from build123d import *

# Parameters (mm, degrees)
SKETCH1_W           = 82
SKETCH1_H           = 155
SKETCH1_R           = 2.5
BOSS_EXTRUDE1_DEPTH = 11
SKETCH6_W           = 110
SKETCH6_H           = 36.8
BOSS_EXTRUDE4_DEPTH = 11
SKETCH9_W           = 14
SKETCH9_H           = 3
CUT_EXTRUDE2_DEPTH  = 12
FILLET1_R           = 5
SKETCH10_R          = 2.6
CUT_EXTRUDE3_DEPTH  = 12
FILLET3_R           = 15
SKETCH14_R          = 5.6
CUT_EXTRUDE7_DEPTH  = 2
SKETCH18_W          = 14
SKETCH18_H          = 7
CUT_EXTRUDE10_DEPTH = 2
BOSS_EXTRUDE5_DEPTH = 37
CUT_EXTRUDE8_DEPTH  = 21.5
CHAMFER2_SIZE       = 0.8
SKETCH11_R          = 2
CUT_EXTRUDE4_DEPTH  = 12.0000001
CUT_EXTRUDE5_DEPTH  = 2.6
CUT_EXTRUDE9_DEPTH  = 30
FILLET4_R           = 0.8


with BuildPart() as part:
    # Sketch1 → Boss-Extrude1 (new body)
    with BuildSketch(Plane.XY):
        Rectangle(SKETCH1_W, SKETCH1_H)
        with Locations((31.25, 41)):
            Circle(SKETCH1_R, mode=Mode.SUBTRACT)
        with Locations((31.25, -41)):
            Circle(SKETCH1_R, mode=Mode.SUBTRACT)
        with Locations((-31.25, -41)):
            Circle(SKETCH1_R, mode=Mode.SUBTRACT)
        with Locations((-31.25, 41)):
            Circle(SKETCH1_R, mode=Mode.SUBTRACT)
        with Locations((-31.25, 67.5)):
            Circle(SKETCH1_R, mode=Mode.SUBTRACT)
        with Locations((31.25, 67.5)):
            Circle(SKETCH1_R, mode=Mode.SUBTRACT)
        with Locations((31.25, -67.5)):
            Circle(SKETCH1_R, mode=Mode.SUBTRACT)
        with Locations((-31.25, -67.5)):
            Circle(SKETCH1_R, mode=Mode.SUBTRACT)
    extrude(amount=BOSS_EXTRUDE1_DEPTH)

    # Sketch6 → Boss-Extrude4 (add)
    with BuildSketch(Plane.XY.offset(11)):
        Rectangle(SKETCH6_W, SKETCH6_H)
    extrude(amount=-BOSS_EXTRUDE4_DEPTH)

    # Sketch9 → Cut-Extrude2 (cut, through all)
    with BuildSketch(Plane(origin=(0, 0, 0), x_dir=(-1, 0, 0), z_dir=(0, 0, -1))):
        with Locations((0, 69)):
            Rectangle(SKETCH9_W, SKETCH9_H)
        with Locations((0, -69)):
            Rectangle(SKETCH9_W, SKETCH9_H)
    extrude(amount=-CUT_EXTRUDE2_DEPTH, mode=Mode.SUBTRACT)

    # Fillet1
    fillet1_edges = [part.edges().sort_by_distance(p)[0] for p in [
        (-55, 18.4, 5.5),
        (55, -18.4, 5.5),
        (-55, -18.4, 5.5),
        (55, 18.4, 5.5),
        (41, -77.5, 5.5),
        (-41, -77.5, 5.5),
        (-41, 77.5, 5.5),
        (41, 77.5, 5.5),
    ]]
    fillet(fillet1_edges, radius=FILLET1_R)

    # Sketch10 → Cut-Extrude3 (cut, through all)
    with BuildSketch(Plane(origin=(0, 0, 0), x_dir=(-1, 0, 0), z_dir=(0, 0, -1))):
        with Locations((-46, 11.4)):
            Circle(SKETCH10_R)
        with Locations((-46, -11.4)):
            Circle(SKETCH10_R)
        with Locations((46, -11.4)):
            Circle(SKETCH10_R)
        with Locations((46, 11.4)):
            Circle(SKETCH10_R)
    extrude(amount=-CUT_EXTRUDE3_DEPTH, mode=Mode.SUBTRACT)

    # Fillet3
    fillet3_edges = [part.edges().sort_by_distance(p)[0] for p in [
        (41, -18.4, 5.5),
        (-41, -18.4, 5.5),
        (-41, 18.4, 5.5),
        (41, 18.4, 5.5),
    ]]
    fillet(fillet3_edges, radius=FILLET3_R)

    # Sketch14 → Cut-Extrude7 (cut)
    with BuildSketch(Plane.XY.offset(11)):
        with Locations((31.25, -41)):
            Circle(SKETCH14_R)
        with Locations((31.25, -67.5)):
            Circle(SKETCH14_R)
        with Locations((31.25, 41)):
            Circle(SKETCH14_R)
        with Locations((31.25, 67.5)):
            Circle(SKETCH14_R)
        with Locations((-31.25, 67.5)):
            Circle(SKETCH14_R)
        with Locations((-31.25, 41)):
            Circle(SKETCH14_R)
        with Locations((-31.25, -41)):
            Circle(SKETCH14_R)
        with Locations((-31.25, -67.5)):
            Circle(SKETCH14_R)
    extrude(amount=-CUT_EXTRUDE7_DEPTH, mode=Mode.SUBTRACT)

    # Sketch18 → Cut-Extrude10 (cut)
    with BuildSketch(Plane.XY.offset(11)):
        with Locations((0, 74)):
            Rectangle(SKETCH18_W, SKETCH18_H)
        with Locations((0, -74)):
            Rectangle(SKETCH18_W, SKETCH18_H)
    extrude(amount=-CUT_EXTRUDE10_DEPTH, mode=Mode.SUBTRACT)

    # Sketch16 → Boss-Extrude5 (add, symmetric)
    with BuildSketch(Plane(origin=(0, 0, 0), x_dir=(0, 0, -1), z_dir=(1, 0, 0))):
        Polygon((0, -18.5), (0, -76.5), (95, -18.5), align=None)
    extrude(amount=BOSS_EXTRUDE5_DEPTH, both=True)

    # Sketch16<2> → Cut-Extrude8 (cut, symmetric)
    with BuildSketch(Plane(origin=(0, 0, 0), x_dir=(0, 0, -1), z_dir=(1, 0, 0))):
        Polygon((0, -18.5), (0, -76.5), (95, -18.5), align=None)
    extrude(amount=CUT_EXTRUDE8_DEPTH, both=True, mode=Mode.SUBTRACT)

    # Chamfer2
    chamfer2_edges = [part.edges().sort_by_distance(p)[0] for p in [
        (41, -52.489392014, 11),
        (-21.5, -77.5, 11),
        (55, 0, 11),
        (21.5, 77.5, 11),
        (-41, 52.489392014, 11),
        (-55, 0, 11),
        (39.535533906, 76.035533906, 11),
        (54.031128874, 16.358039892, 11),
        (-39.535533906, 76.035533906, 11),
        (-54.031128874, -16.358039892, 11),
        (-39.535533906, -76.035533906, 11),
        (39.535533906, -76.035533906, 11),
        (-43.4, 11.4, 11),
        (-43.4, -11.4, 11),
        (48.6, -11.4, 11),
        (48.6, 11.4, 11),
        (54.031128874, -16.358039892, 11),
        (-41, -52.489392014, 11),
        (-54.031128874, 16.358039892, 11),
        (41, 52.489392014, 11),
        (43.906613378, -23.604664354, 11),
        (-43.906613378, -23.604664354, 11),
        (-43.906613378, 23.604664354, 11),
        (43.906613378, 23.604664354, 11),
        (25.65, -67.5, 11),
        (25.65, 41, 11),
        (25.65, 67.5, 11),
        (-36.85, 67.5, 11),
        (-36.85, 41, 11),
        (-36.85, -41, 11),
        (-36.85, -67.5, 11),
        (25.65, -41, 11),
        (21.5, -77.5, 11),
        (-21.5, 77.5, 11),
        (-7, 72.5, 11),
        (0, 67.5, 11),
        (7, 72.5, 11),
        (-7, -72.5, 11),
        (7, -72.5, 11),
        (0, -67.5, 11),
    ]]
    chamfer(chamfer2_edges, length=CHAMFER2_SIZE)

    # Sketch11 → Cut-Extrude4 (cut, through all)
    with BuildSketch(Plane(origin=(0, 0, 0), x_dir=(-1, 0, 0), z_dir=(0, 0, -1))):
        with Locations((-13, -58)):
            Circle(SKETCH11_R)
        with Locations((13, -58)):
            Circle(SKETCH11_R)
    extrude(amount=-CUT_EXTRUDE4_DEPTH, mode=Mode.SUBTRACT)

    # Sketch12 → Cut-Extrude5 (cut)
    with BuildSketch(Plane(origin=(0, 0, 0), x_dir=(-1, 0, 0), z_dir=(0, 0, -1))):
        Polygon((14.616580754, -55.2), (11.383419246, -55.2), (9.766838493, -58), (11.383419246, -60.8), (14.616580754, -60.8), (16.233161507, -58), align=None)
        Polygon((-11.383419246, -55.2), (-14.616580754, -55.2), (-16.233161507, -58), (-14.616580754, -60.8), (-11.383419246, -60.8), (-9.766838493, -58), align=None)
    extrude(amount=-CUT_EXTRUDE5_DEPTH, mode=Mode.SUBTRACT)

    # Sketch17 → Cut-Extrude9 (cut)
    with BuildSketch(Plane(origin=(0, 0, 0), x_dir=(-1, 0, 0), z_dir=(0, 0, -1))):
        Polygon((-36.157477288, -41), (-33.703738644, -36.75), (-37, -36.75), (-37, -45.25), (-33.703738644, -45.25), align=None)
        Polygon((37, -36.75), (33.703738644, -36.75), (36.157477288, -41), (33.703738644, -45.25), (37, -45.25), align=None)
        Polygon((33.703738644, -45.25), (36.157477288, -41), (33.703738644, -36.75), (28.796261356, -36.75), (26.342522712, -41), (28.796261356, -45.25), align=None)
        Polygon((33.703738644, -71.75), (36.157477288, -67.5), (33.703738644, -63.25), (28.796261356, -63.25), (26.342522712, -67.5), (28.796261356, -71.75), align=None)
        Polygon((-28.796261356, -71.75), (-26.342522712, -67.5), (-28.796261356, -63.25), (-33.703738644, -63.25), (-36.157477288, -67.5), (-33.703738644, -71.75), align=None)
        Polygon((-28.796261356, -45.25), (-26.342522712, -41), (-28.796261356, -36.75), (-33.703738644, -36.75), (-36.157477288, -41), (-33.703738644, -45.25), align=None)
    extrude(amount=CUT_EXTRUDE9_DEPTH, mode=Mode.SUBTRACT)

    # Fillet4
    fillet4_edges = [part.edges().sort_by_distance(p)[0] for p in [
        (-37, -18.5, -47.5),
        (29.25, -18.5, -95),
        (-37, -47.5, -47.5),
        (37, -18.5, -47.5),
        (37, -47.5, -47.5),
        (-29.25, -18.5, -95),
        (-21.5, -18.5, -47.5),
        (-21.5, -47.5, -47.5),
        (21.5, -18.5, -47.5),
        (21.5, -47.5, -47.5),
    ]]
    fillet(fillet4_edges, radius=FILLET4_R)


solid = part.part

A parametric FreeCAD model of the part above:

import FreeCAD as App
import Part
import Sketcher
from FreeCAD import Vector
Q = App.Units.Quantity


def edges_at(feature, points):
    """Names of the edges that pass closest to the given points."""
    edges = feature.Shape.Edges
    near = lambda p: min(range(len(edges)), key=lambda i: edges[i].distToShape(Part.Vertex(*p))[0])
    return sorted({f"Edge{near(p) + 1}" for p in points})

doc = App.newDocument("Part")
body = doc.addObject("PartDesign::Body", "Body")

# Sketch on XY plane
sketch1 = doc.addObject("Sketcher::SketchObject", "Sketch")
body.addObject(sketch1)
sketch1.AttachmentSupport = (doc.XY_Plane, [""])
sketch1.MapMode = "FlatFace"
sketch1.addGeometry([
    Part.LineSegment(Vector(-41, 77.5, 0), Vector(-41, -77.5, 0)),  # 0
    Part.LineSegment(Vector(-41, -77.5, 0), Vector(41, -77.5, 0)),  # 1
    Part.LineSegment(Vector(41, -77.5, 0), Vector(41, 77.5, 0)),  # 2
    Part.LineSegment(Vector(41, 77.5, 0), Vector(-41, 77.5, 0)),  # 3
    Part.Circle(Vector(-31.25, -67.5, 0), Vector(0, 0, 1), 2.5),  # 4
    Part.Circle(Vector(-31.25, -41, 0), Vector(0, 0, 1), 2.5),  # 5
    Part.Circle(Vector(31.25, -67.5, 0), Vector(0, 0, 1), 2.5),  # 6
    Part.Circle(Vector(31.25, -41, 0), Vector(0, 0, 1), 2.5),  # 7
    Part.Circle(Vector(-31.25, 41, 0), Vector(0, 0, 1), 2.5),  # 8
    Part.Circle(Vector(-31.25, 67.5, 0), Vector(0, 0, 1), 2.5),  # 9
    Part.Circle(Vector(31.25, 41, 0), Vector(0, 0, 1), 2.5),  # 10
    Part.Circle(Vector(31.25, 67.5, 0), Vector(0, 0, 1), 2.5),  # 11
], False)
sketch1.addConstraint([
    Sketcher.Constraint("Coincident", 0, 2, 1, 1),
    Sketcher.Constraint("Coincident", 1, 2, 2, 1),
    Sketcher.Constraint("Coincident", 2, 2, 3, 1),
    Sketcher.Constraint("Coincident", 3, 2, 0, 1),
    Sketcher.Constraint("Vertical", 0),
    Sketcher.Constraint("Horizontal", 1),
    Sketcher.Constraint("Vertical", 2),
    Sketcher.Constraint("Horizontal", 3),
    Sketcher.Constraint("Equal", 4, 5),
    Sketcher.Constraint("Equal", 5, 6),
    Sketcher.Constraint("Equal", 6, 7),
    Sketcher.Constraint("Equal", 7, 8),
    Sketcher.Constraint("Equal", 8, 9),
    Sketcher.Constraint("Equal", 9, 10),
    Sketcher.Constraint("Equal", 10, 11),
    Sketcher.Constraint("Symmetric", 7, 3, 8, 3, -1, 1),
    Sketcher.Constraint("Symmetric", 6, 3, 9, 3, -1, 1),
    Sketcher.Constraint("Symmetric", 5, 3, 10, 3, -1, 1),
    Sketcher.Constraint("Symmetric", 4, 3, 11, 3, -1, 1),
    Sketcher.Constraint("Symmetric", 0, 2, 2, 2, -1, 1),
    Sketcher.Constraint("Symmetric", 4, 3, 6, 3, -2),
    Sketcher.Constraint("Symmetric", 5, 3, 7, 3, -2),
    Sketcher.Constraint("Vertical", 4, 3, 5, 3),
    Sketcher.Constraint("Diameter", 4, 5.0),
    Sketcher.Constraint("DistanceX", 1, 1, 1, 2, 82.0),
    Sketcher.Constraint("DistanceY", 0, 2, 0, 1, 155.0),
    Sketcher.Constraint("DistanceY", 5, 3, -1, 1, 41.0),
    Sketcher.Constraint("DistanceY", 4, 3, 9, 3, 135.0),
    Sketcher.Constraint("DistanceX", 4, 3, 6, 3, 62.5),
])
pad1 = doc.addObject("PartDesign::Pad", "Pad")
body.addObject(pad1)
pad1.Profile = sketch1
pad1.Length = 11

# Sketch on XY plane
sketch2 = doc.addObject("Sketcher::SketchObject", "Sketch001")
body.addObject(sketch2)
sketch2.AttachmentSupport = (doc.XY_Plane, [""])
sketch2.MapMode = "FlatFace"
sketch2.AttachmentOffset = App.Placement(Vector(0, 0, 11), App.Rotation())
sketch2.addGeometry([
    Part.LineSegment(Vector(-55, 18.4, 0), Vector(-55, -18.4, 0)),
    Part.LineSegment(Vector(-55, -18.4, 0), Vector(55, -18.4, 0)),
    Part.LineSegment(Vector(55, -18.4, 0), Vector(55, 18.4, 0)),
    Part.LineSegment(Vector(55, 18.4, 0), Vector(-55, 18.4, 0)),
], False)
sketch2.addConstraint([
    Sketcher.Constraint("Coincident", 0, 2, 1, 1),
    Sketcher.Constraint("Coincident", 1, 2, 2, 1),
    Sketcher.Constraint("Coincident", 2, 2, 3, 1),
    Sketcher.Constraint("Coincident", 3, 2, 0, 1),
    Sketcher.Constraint("Vertical", 0),
    Sketcher.Constraint("Horizontal", 1),
    Sketcher.Constraint("Vertical", 2),
    Sketcher.Constraint("Horizontal", 3),
    Sketcher.Constraint("Symmetric", 0, 2, 2, 2, -1, 1),
    Sketcher.Constraint("DistanceX", 1, 1, 1, 2, 110.0),
    Sketcher.Constraint("DistanceY", 0, 2, 0, 1, 36.8),
])
pad2 = doc.addObject("PartDesign::Pad", "Pad001")
body.addObject(pad2)
pad2.Profile = sketch2
pad2.Length = 11
pad2.Reversed = True

# Sketch on XY plane
sketch3 = doc.addObject("Sketcher::SketchObject", "Sketch002")
body.addObject(sketch3)
sketch3.AttachmentSupport = (doc.XY_Plane, [""])
sketch3.MapMode = "FlatFace"
sketch3.addGeometry([
    Part.LineSegment(Vector(7, 70.5, 0), Vector(7, 67.5, 0)),  # 0
    Part.LineSegment(Vector(7, 67.5, 0), Vector(-7, 67.5, 0)),  # 1
    Part.LineSegment(Vector(-7, 67.5, 0), Vector(-7, 70.5, 0)),  # 2
    Part.LineSegment(Vector(-7, 70.5, 0), Vector(7, 70.5, 0)),  # 3
    Part.LineSegment(Vector(7, -67.5, 0), Vector(7, -70.5, 0)),  # 4
    Part.LineSegment(Vector(7, -70.5, 0), Vector(-7, -70.5, 0)),  # 5
    Part.LineSegment(Vector(-7, -70.5, 0), Vector(-7, -67.5, 0)),  # 6
    Part.LineSegment(Vector(-7, -67.5, 0), Vector(7, -67.5, 0)),  # 7
], False)
sketch3.addConstraint([
    Sketcher.Constraint("Coincident", 0, 2, 1, 1),
    Sketcher.Constraint("Coincident", 1, 2, 2, 1),
    Sketcher.Constraint("Coincident", 2, 2, 3, 1),
    Sketcher.Constraint("Coincident", 3, 2, 0, 1),
    Sketcher.Constraint("Coincident", 4, 2, 5, 1),
    Sketcher.Constraint("Coincident", 5, 2, 6, 1),
    Sketcher.Constraint("Coincident", 6, 2, 7, 1),
    Sketcher.Constraint("Coincident", 7, 2, 4, 1),
    Sketcher.Constraint("Vertical", 0),
    Sketcher.Constraint("Horizontal", 1),
    Sketcher.Constraint("Vertical", 2),
    Sketcher.Constraint("Horizontal", 3),
    Sketcher.Constraint("Vertical", 4),
    Sketcher.Constraint("Horizontal", 5),
    Sketcher.Constraint("Vertical", 6),
    Sketcher.Constraint("Horizontal", 7),
    Sketcher.Constraint("Symmetric", 2, 2, 4, 2, -1, 1),
    Sketcher.Constraint("Symmetric", 0, 2, 6, 2, -1, 1),
    Sketcher.Constraint("Vertical", 3, 2, 4, 2),
    Sketcher.Constraint("DistanceX", 1, 2, 1, 1, 14.0),
    Sketcher.Constraint("DistanceY", 0, 2, 0, 1, 3.0),
    Sketcher.Constraint("DistanceY", 4, 2, 0, 2, 138.0),
])
pocket1 = doc.addObject("PartDesign::Pocket", "Pocket")
body.addObject(pocket1)
pocket1.Profile = sketch3
pocket1.Type = "ThroughAll"
pocket1.Reversed = True
doc.recompute()

fillet = doc.addObject("PartDesign::Fillet", "Fillet")
body.addObject(fillet)
fillet.Base = (pocket1, edges_at(pocket1, [
    (-55, 18.4, 5.5),
    (55, -18.4, 5.5),
    (-55, -18.4, 5.5),
    (55, 18.4, 5.5),
    (41, -77.5, 5.5),
    (-41, -77.5, 5.5),
    (-41, 77.5, 5.5),
    (41, 77.5, 5.5),
]))
fillet.Radius = 5

# Sketch on XY plane
sketch4 = doc.addObject("Sketcher::SketchObject", "Sketch003")
body.addObject(sketch4)
sketch4.AttachmentSupport = (doc.XY_Plane, [""])
sketch4.MapMode = "FlatFace"
sketch4.addGeometry([
    Part.Circle(Vector(46, 11.4, 0), Vector(0, 0, 1), 2.6),
    Part.Circle(Vector(46, -11.4, 0), Vector(0, 0, 1), 2.6),
    Part.Circle(Vector(-46, -11.4, 0), Vector(0, 0, 1), 2.6),
    Part.Circle(Vector(-46, 11.4, 0), Vector(0, 0, 1), 2.6),
], False)
sketch4.addConstraint([
    Sketcher.Constraint("Equal", 0, 1),
    Sketcher.Constraint("Equal", 1, 2),
    Sketcher.Constraint("Equal", 2, 3),
    Sketcher.Constraint("Symmetric", 0, 3, 2, 3, -1, 1),
    Sketcher.Constraint("Symmetric", 1, 3, 3, 3, -1, 1),
    Sketcher.Constraint("Symmetric", 1, 3, 2, 3, -2),
    Sketcher.Constraint("Diameter", 0, 5.2),
    Sketcher.Constraint("DistanceX", -1, 1, 0, 3, 46.0),
    Sketcher.Constraint("DistanceY", -1, 1, 0, 3, 11.4),
])
pocket2 = doc.addObject("PartDesign::Pocket", "Pocket001")
body.addObject(pocket2)
pocket2.Profile = sketch4
pocket2.Type = "ThroughAll"
pocket2.Reversed = True
doc.recompute()

fillet2 = doc.addObject("PartDesign::Fillet", "Fillet001")
body.addObject(fillet2)
fillet2.Base = (pocket2, edges_at(pocket2, [
    (41, -18.4, 5.5),
    (-41, -18.4, 5.5),
    (-41, 18.4, 5.5),
    (41, 18.4, 5.5),
]))
fillet2.Radius = 15

# Sketch on XY plane
sketch5 = doc.addObject("Sketcher::SketchObject", "Sketch004")
body.addObject(sketch5)
sketch5.AttachmentSupport = (doc.XY_Plane, [""])
sketch5.MapMode = "FlatFace"
sketch5.AttachmentOffset = App.Placement(Vector(0, 0, 11), App.Rotation())
sketch5.addGeometry([
    Part.Circle(Vector(31.25, -41, 0), Vector(0, 0, 1), 5.6),  # 0
    Part.Circle(Vector(31.25, -67.5, 0), Vector(0, 0, 1), 5.6),  # 1
    Part.Circle(Vector(31.25, 41, 0), Vector(0, 0, 1), 5.6),  # 2
    Part.Circle(Vector(31.25, 67.5, 0), Vector(0, 0, 1), 5.6),  # 3
    Part.Circle(Vector(-31.25, 67.5, 0), Vector(0, 0, 1), 5.6),  # 4
    Part.Circle(Vector(-31.25, 41, 0), Vector(0, 0, 1), 5.6),  # 5
    Part.Circle(Vector(-31.25, -41, 0), Vector(0, 0, 1), 5.6),  # 6
    Part.Circle(Vector(-31.25, -67.5, 0), Vector(0, 0, 1), 5.6),  # 7
], False)
sketch5.addConstraint([
    Sketcher.Constraint("Equal", 0, 1),
    Sketcher.Constraint("Equal", 1, 2),
    Sketcher.Constraint("Equal", 2, 3),
    Sketcher.Constraint("Equal", 3, 4),
    Sketcher.Constraint("Equal", 4, 5),
    Sketcher.Constraint("Equal", 5, 6),
    Sketcher.Constraint("Equal", 6, 7),
    Sketcher.Constraint("Symmetric", 1, 3, 4, 3, -1, 1),
    Sketcher.Constraint("Symmetric", 0, 3, 5, 3, -1, 1),
    Sketcher.Constraint("Symmetric", 2, 3, 6, 3, -1, 1),
    Sketcher.Constraint("Symmetric", 3, 3, 7, 3, -1, 1),
    Sketcher.Constraint("Symmetric", 3, 3, 4, 3, -2),
    Sketcher.Constraint("Symmetric", 2, 3, 5, 3, -2),
    Sketcher.Constraint("Vertical", 0, 3, 1, 3),
    Sketcher.Constraint("Diameter", 0, 11.2),
    Sketcher.Constraint("DistanceY", 0, 3, -1, 1, 41.0),
    Sketcher.Constraint("DistanceY", 1, 3, 3, 3, 135.0),
    Sketcher.Constraint("DistanceX", 4, 3, 3, 3, 62.5),
])
pocket3 = doc.addObject("PartDesign::Pocket", "Pocket002")
body.addObject(pocket3)
pocket3.Profile = sketch5
pocket3.Length = 2

# Sketch on XY plane
sketch6 = doc.addObject("Sketcher::SketchObject", "Sketch005")
body.addObject(sketch6)
sketch6.AttachmentSupport = (doc.XY_Plane, [""])
sketch6.MapMode = "FlatFace"
sketch6.AttachmentOffset = App.Placement(Vector(0, 0, 11), App.Rotation())
sketch6.addGeometry([
    Part.LineSegment(Vector(-7, 77.5, 0), Vector(-7, 70.5, 0)),  # 0
    Part.LineSegment(Vector(-7, 70.5, 0), Vector(7, 70.5, 0)),  # 1
    Part.LineSegment(Vector(7, 70.5, 0), Vector(7, 77.5, 0)),  # 2
    Part.LineSegment(Vector(7, 77.5, 0), Vector(-7, 77.5, 0)),  # 3
    Part.LineSegment(Vector(-7, -70.5, 0), Vector(-7, -77.5, 0)),  # 4
    Part.LineSegment(Vector(-7, -77.5, 0), Vector(7, -77.5, 0)),  # 5
    Part.LineSegment(Vector(7, -77.5, 0), Vector(7, -70.5, 0)),  # 6
    Part.LineSegment(Vector(7, -70.5, 0), Vector(-7, -70.5, 0)),  # 7
], False)
sketch6.addConstraint([
    Sketcher.Constraint("Coincident", 0, 2, 1, 1),
    Sketcher.Constraint("Coincident", 1, 2, 2, 1),
    Sketcher.Constraint("Coincident", 2, 2, 3, 1),
    Sketcher.Constraint("Coincident", 3, 2, 0, 1),
    Sketcher.Constraint("Coincident", 4, 2, 5, 1),
    Sketcher.Constraint("Coincident", 5, 2, 6, 1),
    Sketcher.Constraint("Coincident", 6, 2, 7, 1),
    Sketcher.Constraint("Coincident", 7, 2, 4, 1),
    Sketcher.Constraint("Vertical", 0),
    Sketcher.Constraint("Horizontal", 1),
    Sketcher.Constraint("Vertical", 2),
    Sketcher.Constraint("Horizontal", 3),
    Sketcher.Constraint("Vertical", 4),
    Sketcher.Constraint("Horizontal", 5),
    Sketcher.Constraint("Vertical", 6),
    Sketcher.Constraint("Horizontal", 7),
    Sketcher.Constraint("Symmetric", 2, 2, 4, 2, -1, 1),
    Sketcher.Constraint("Symmetric", 0, 2, 6, 2, -1, 1),
    Sketcher.Constraint("Vertical", 3, 2, 4, 2),
    Sketcher.Constraint("DistanceX", 1, 1, 1, 2, 14.0),
    Sketcher.Constraint("DistanceY", 0, 2, 0, 1, 7.0),
    Sketcher.Constraint("DistanceY", 4, 2, 0, 2, 148.0),
])
pocket4 = doc.addObject("PartDesign::Pocket", "Pocket003")
body.addObject(pocket4)
pocket4.Profile = sketch6
pocket4.Length = 2

# Sketch on YZ plane
sketch7 = doc.addObject("Sketcher::SketchObject", "Sketch006")
body.addObject(sketch7)
sketch7.AttachmentSupport = (doc.YZ_Plane, [""])
sketch7.MapMode = "FlatFace"
sketch7.addGeometry([
    Part.LineSegment(Vector(-18.5, 0, 0), Vector(-76.5, 0, 0)),
    Part.LineSegment(Vector(-76.5, 0, 0), Vector(-18.5, -95, 0)),
    Part.LineSegment(Vector(-18.5, -95, 0), Vector(-18.5, 0, 0)),
], False)
sketch7.addConstraint([
    Sketcher.Constraint("Coincident", 0, 2, 1, 1),
    Sketcher.Constraint("Coincident", 1, 2, 2, 1),
    Sketcher.Constraint("Coincident", 2, 2, 0, 1),
    Sketcher.Constraint("Horizontal", 0),
    Sketcher.Constraint("Vertical", 2),
    Sketcher.Constraint("PointOnObject", 0, 2, -1),
    Sketcher.Constraint("DistanceX", 0, 2, 0, 1, 58.0),
    Sketcher.Constraint("DistanceY", 2, 1, 2, 2, 95.0),
    Sketcher.Constraint("DistanceX", 0, 2, -1, 1, 76.5),
])
pad3 = doc.addObject("PartDesign::Pad", "Pad002")
body.addObject(pad3)
pad3.Profile = sketch7
pad3.Length = 74
pad3.Midplane = True

# Sketch on YZ plane
sketch8 = doc.addObject("Sketcher::SketchObject", "Sketch007")
body.addObject(sketch8)
sketch8.AttachmentSupport = (doc.YZ_Plane, [""])
sketch8.MapMode = "FlatFace"
sketch8.addGeometry([
    Part.LineSegment(Vector(-18.5, 0, 0), Vector(-76.5, 0, 0)),
    Part.LineSegment(Vector(-76.5, 0, 0), Vector(-18.5, -95, 0)),
    Part.LineSegment(Vector(-18.5, -95, 0), Vector(-18.5, 0, 0)),
], False)
sketch8.addConstraint([
    Sketcher.Constraint("Coincident", 0, 2, 1, 1),
    Sketcher.Constraint("Coincident", 1, 2, 2, 1),
    Sketcher.Constraint("Coincident", 2, 2, 0, 1),
    Sketcher.Constraint("Horizontal", 0),
    Sketcher.Constraint("Vertical", 2),
    Sketcher.Constraint("PointOnObject", 0, 2, -1),
    Sketcher.Constraint("DistanceX", 0, 2, 0, 1, 58.0),
    Sketcher.Constraint("DistanceY", 2, 1, 2, 2, 95.0),
    Sketcher.Constraint("DistanceX", 0, 2, -1, 1, 76.5),
])
pocket5 = doc.addObject("PartDesign::Pocket", "Pocket004")
body.addObject(pocket5)
pocket5.Profile = sketch8
pocket5.Length = 43
pocket5.Midplane = True
doc.recompute()

chamfer = doc.addObject("PartDesign::Chamfer", "Chamfer")
body.addObject(chamfer)
chamfer.Base = (pocket5, edges_at(pocket5, [
    (41, -52.489, 11),
    (-21.5, -77.5, 11),
    (55, 0, 11),
    (21.5, 77.5, 11),
    (-41, 52.489, 11),
    (-55, 0, 11),
    (39.536, 76.036, 11),
    (54.031, 16.358, 11),
    (-39.536, 76.036, 11),
    (-54.031, -16.358, 11),
    (-39.536, -76.036, 11),
    (39.536, -76.036, 11),
    (-43.4, 11.4, 11),
    (-43.4, -11.4, 11),
    (48.6, -11.4, 11),
    (48.6, 11.4, 11),
    (54.031, -16.358, 11),
    (-41, -52.489, 11),
    (-54.031, 16.358, 11),
    (41, 52.489, 11),
    (43.907, -23.605, 11),
    (-43.907, -23.605, 11),
    (-43.907, 23.605, 11),
    (43.907, 23.605, 11),
    (25.65, -67.5, 11),
    (25.65, 41, 11),
    (25.65, 67.5, 11),
    (-36.85, 67.5, 11),
    (-36.85, 41, 11),
    (-36.85, -41, 11),
    (-36.85, -67.5, 11),
    (25.65, -41, 11),
    (21.5, -77.5, 11),
    (-21.5, 77.5, 11),
    (-7, 72.5, 11),
    (0, 67.5, 11),
    (7, 72.5, 11),
    (-7, -72.5, 11),
    (7, -72.5, 11),
    (0, -67.5, 11),
]))
chamfer.Size = 0.8

# Sketch on XY plane
sketch9 = doc.addObject("Sketcher::SketchObject", "Sketch008")
body.addObject(sketch9)
sketch9.AttachmentSupport = (doc.XY_Plane, [""])
sketch9.MapMode = "FlatFace"
sketch9.addGeometry([
    Part.Circle(Vector(13, -58, 0), Vector(0, 0, 1), 2),
    Part.Circle(Vector(-13, -58, 0), Vector(0, 0, 1), 2),
], False)
sketch9.addConstraint([
    Sketcher.Constraint("Equal", 0, 1),
    Sketcher.Constraint("Symmetric", 0, 3, 1, 3, -2),
    Sketcher.Constraint("Diameter", 0, 4.0),
    Sketcher.Constraint("DistanceX", -1, 1, 0, 3, 13.0),
    Sketcher.Constraint("DistanceY", 0, 3, -1, 1, 58.0),
])
pocket6 = doc.addObject("PartDesign::Pocket", "Pocket005")
body.addObject(pocket6)
pocket6.Profile = sketch9
pocket6.Type = "ThroughAll"
pocket6.Reversed = True

# Sketch on XY plane
sketch10 = doc.addObject("Sketcher::SketchObject", "Sketch009")
body.addObject(sketch10)
sketch10.AttachmentSupport = (doc.XY_Plane, [""])
sketch10.MapMode = "FlatFace"
sketch10.addGeometry([
    Part.LineSegment(Vector(-14.616581, -55.2, 0), Vector(-11.383419, -55.2, 0)),  # 0
    Part.LineSegment(Vector(-11.383419, -55.2, 0), Vector(-9.766838, -58, 0)),  # 1
    Part.LineSegment(Vector(-9.766838, -58, 0), Vector(-11.383419, -60.8, 0)),  # 2
    Part.LineSegment(Vector(-11.383419, -60.8, 0), Vector(-14.616581, -60.8, 0)),  # 3
    Part.LineSegment(Vector(-14.616581, -60.8, 0), Vector(-16.233162, -58, 0)),  # 4
    Part.LineSegment(Vector(-16.233162, -58, 0), Vector(-14.616581, -55.2, 0)),  # 5
    Part.LineSegment(Vector(11.383419, -55.2, 0), Vector(14.616581, -55.2, 0)),  # 6
    Part.LineSegment(Vector(14.616581, -55.2, 0), Vector(16.233162, -58, 0)),  # 7
    Part.LineSegment(Vector(16.233162, -58, 0), Vector(14.616581, -60.8, 0)),  # 8
    Part.LineSegment(Vector(14.616581, -60.8, 0), Vector(11.383419, -60.8, 0)),  # 9
    Part.LineSegment(Vector(11.383419, -60.8, 0), Vector(9.766838, -58, 0)),  # 10
    Part.LineSegment(Vector(9.766838, -58, 0), Vector(11.383419, -55.2, 0)),  # 11
], False)
sketch10.addConstraint([
    Sketcher.Constraint("Coincident", 0, 2, 1, 1),
    Sketcher.Constraint("Coincident", 1, 2, 2, 1),
    Sketcher.Constraint("Coincident", 2, 2, 3, 1),
    Sketcher.Constraint("Coincident", 3, 2, 4, 1),
    Sketcher.Constraint("Coincident", 4, 2, 5, 1),
    Sketcher.Constraint("Coincident", 5, 2, 0, 1),
    Sketcher.Constraint("Coincident", 6, 2, 7, 1),
    Sketcher.Constraint("Coincident", 7, 2, 8, 1),
    Sketcher.Constraint("Coincident", 8, 2, 9, 1),
    Sketcher.Constraint("Coincident", 9, 2, 10, 1),
    Sketcher.Constraint("Coincident", 10, 2, 11, 1),
    Sketcher.Constraint("Coincident", 11, 2, 6, 1),
    Sketcher.Constraint("Horizontal", 0),
    Sketcher.Constraint("Horizontal", 3),
    Sketcher.Constraint("Horizontal", 6),
    Sketcher.Constraint("Horizontal", 9),
    Sketcher.Constraint("Symmetric", 5, 2, 6, 2, -2),
    Sketcher.Constraint("Symmetric", 4, 2, 7, 2, -2),
    Sketcher.Constraint("Symmetric", 3, 2, 8, 2, -2),
    Sketcher.Constraint("Symmetric", 1, 2, 10, 2, -2),
    Sketcher.Constraint("Parallel", 1, 4),
    Sketcher.Constraint("Parallel", 2, 5),
    Sketcher.Constraint("Parallel", 4, 7),
    Sketcher.Constraint("Parallel", 7, 10),
    Sketcher.Constraint("Parallel", 8, 11),
    Sketcher.Constraint("Horizontal", 1, 2, 4, 2),
    Sketcher.Constraint("Vertical", 0, 2, 2, 2),
    Sketcher.Constraint("Angle", 1, Q("-60 deg")),
    Sketcher.Constraint("DistanceY", 1, 2, -1, 1, 58.0),
    Sketcher.Constraint("DistanceX", 0, 2, 6, 2, 26.0),
    Sketcher.Constraint("DistanceY", 0, 2, -1, 1, 55.2),
    Sketcher.Constraint("DistanceX", 0, 1, 0, 2, 3.233162),
])
pocket7 = doc.addObject("PartDesign::Pocket", "Pocket006")
body.addObject(pocket7)
pocket7.Profile = sketch10
pocket7.Length = 2.6
pocket7.Reversed = True

# Sketch on XY plane
sketch11 = doc.addObject("Sketcher::SketchObject", "Sketch010")
body.addObject(sketch11)
sketch11.AttachmentSupport = (doc.XY_Plane, [""])
sketch11.MapMode = "FlatFace"
sketch11.addGeometry([
    Part.LineSegment(Vector(37, -36.75, 0), Vector(37, -45.25, 0)),  # 0
    Part.LineSegment(Vector(37, -45.25, 0), Vector(28.796261, -45.25, 0)),  # 1
    Part.LineSegment(Vector(28.796261, -45.25, 0), Vector(26.342523, -41, 0)),  # 2
    Part.LineSegment(Vector(26.342523, -41, 0), Vector(28.796261, -36.75, 0)),  # 3
    Part.LineSegment(Vector(28.796261, -36.75, 0), Vector(37, -36.75, 0)),  # 4
    Part.LineSegment(Vector(-37, -36.75, 0), Vector(-28.796261, -36.75, 0)),  # 5
    Part.LineSegment(Vector(-28.796261, -36.75, 0), Vector(-26.342523, -41, 0)),  # 6
    Part.LineSegment(Vector(-26.342523, -41, 0), Vector(-28.796261, -45.25, 0)),  # 7
    Part.LineSegment(Vector(-28.796261, -45.25, 0), Vector(-37, -45.25, 0)),  # 8
    Part.LineSegment(Vector(-37, -45.25, 0), Vector(-37, -36.75, 0)),  # 9
    Part.LineSegment(Vector(-33.703739, -71.75, 0), Vector(-36.157477, -67.5, 0)),  # 10
    Part.LineSegment(Vector(-36.157477, -67.5, 0), Vector(-33.703739, -63.25, 0)),  # 11
    Part.LineSegment(Vector(-33.703739, -63.25, 0), Vector(-28.796261, -63.25, 0)),  # 12
    Part.LineSegment(Vector(-28.796261, -63.25, 0), Vector(-26.342523, -67.5, 0)),  # 13
    Part.LineSegment(Vector(-26.342523, -67.5, 0), Vector(-28.796261, -71.75, 0)),  # 14
    Part.LineSegment(Vector(-28.796261, -71.75, 0), Vector(-33.703739, -71.75, 0)),  # 15
    Part.LineSegment(Vector(28.796261, -71.75, 0), Vector(26.342523, -67.5, 0)),  # 16
    Part.LineSegment(Vector(26.342523, -67.5, 0), Vector(28.796261, -63.25, 0)),  # 17
    Part.LineSegment(Vector(28.796261, -63.25, 0), Vector(33.703739, -63.25, 0)),  # 18
    Part.LineSegment(Vector(33.703739, -63.25, 0), Vector(36.157477, -67.5, 0)),  # 19
    Part.LineSegment(Vector(36.157477, -67.5, 0), Vector(33.703739, -71.75, 0)),  # 20
    Part.LineSegment(Vector(33.703739, -71.75, 0), Vector(28.796261, -71.75, 0)),  # 21
], False)
sketch11.addConstraint([
    Sketcher.Constraint("Coincident", 0, 2, 1, 1),
    Sketcher.Constraint("Coincident", 1, 2, 2, 1),
    Sketcher.Constraint("Coincident", 2, 2, 3, 1),
    Sketcher.Constraint("Coincident", 3, 2, 4, 1),
    Sketcher.Constraint("Coincident", 4, 2, 0, 1),
    Sketcher.Constraint("Coincident", 5, 2, 6, 1),
    Sketcher.Constraint("Coincident", 6, 2, 7, 1),
    Sketcher.Constraint("Coincident", 7, 2, 8, 1),
    Sketcher.Constraint("Coincident", 8, 2, 9, 1),
    Sketcher.Constraint("Coincident", 9, 2, 5, 1),
    Sketcher.Constraint("Coincident", 10, 2, 11, 1),
    Sketcher.Constraint("Coincident", 11, 2, 12, 1),
    Sketcher.Constraint("Coincident", 12, 2, 13, 1),
    Sketcher.Constraint("Coincident", 13, 2, 14, 1),
    Sketcher.Constraint("Coincident", 14, 2, 15, 1),
    Sketcher.Constraint("Coincident", 15, 2, 10, 1),
    Sketcher.Constraint("Coincident", 16, 2, 17, 1),
    Sketcher.Constraint("Coincident", 17, 2, 18, 1),
    Sketcher.Constraint("Coincident", 18, 2, 19, 1),
    Sketcher.Constraint("Coincident", 19, 2, 20, 1),
    Sketcher.Constraint("Coincident", 20, 2, 21, 1),
    Sketcher.Constraint("Coincident", 21, 2, 16, 1),
    Sketcher.Constraint("Vertical", 0),
    Sketcher.Constraint("Horizontal", 1),
    Sketcher.Constraint("Horizontal", 4),
    Sketcher.Constraint("Horizontal", 5),
    Sketcher.Constraint("Horizontal", 8),
    Sketcher.Constraint("Vertical", 9),
    Sketcher.Constraint("Horizontal", 12),
    Sketcher.Constraint("Horizontal", 15),
    Sketcher.Constraint("Horizontal", 18),
    Sketcher.Constraint("Horizontal", 21),
    Sketcher.Constraint("Symmetric", 3, 2, 5, 2, -2),
    Sketcher.Constraint("Symmetric", 2, 2, 6, 2, -2),
    Sketcher.Constraint("Symmetric", 1, 2, 7, 2, -2),
    Sketcher.Constraint("Symmetric", 13, 2, 16, 2, -2),
    Sketcher.Constraint("Symmetric", 12, 2, 17, 2, -2),
    Sketcher.Constraint("Symmetric", 10, 2, 19, 2, -2),
    Sketcher.Constraint("Symmetric", 15, 2, 20, 2, -2),
    Sketcher.Constraint("Parallel", 2, 6),
    Sketcher.Constraint("Parallel", 6, 10),
    Sketcher.Constraint("Parallel", 7, 11),
    Sketcher.Constraint("Parallel", 10, 13),
    Sketcher.Constraint("Parallel", 11, 14),
    Sketcher.Constraint("Parallel", 13, 16),
    Sketcher.Constraint("Parallel", 16, 19),
    Sketcher.Constraint("Horizontal", 10, 2, 13, 2),
    Sketcher.Constraint("Vertical", 1, 2, 3, 2),
    Sketcher.Constraint("Vertical", 7, 2, 12, 2),
    Sketcher.Constraint("Vertical", 6, 2, 13, 2),
    Sketcher.Constraint("Vertical", 12, 2, 14, 2),
    Sketcher.Constraint("Equal", 4, 5),
    Sketcher.Constraint("Angle", 2, Q("120 deg")),
    Sketcher.Constraint("DistanceY", 0, 2, 0, 1, 8.5),
    Sketcher.Constraint("DistanceX", -1, 1, 0, 2, 37.0),
    Sketcher.Constraint("DistanceY", 2, 2, -1, 1, 41.0),
    Sketcher.Constraint("DistanceY", 11, 2, 8, 2, 18.0),
    Sketcher.Constraint("DistanceX", 1, 2, 1, 1, 8.203739),
    Sketcher.Constraint("DistanceX", 12, 1, 12, 2, 4.907477),
])
pocket8 = doc.addObject("PartDesign::Pocket", "Pocket007")
body.addObject(pocket8)
pocket8.Profile = sketch11
pocket8.Length = 30
doc.recompute()

fillet3 = doc.addObject("PartDesign::Fillet", "Fillet002")
body.addObject(fillet3)
fillet3.Base = (pocket8, edges_at(pocket8, [
    (-37, -18.5, -47.5),
    (29.25, -18.5, -95),
    (-37, -47.5, -47.5),
    (37, -18.5, -47.5),
    (37, -47.5, -47.5),
    (-29.25, -18.5, -95),
    (-21.5, -18.5, -47.5),
    (-21.5, -47.5, -47.5),
    (21.5, -18.5, -47.5),
    (21.5, -47.5, -47.5),
]))
fillet3.Radius = 0.8

doc.recompute()
